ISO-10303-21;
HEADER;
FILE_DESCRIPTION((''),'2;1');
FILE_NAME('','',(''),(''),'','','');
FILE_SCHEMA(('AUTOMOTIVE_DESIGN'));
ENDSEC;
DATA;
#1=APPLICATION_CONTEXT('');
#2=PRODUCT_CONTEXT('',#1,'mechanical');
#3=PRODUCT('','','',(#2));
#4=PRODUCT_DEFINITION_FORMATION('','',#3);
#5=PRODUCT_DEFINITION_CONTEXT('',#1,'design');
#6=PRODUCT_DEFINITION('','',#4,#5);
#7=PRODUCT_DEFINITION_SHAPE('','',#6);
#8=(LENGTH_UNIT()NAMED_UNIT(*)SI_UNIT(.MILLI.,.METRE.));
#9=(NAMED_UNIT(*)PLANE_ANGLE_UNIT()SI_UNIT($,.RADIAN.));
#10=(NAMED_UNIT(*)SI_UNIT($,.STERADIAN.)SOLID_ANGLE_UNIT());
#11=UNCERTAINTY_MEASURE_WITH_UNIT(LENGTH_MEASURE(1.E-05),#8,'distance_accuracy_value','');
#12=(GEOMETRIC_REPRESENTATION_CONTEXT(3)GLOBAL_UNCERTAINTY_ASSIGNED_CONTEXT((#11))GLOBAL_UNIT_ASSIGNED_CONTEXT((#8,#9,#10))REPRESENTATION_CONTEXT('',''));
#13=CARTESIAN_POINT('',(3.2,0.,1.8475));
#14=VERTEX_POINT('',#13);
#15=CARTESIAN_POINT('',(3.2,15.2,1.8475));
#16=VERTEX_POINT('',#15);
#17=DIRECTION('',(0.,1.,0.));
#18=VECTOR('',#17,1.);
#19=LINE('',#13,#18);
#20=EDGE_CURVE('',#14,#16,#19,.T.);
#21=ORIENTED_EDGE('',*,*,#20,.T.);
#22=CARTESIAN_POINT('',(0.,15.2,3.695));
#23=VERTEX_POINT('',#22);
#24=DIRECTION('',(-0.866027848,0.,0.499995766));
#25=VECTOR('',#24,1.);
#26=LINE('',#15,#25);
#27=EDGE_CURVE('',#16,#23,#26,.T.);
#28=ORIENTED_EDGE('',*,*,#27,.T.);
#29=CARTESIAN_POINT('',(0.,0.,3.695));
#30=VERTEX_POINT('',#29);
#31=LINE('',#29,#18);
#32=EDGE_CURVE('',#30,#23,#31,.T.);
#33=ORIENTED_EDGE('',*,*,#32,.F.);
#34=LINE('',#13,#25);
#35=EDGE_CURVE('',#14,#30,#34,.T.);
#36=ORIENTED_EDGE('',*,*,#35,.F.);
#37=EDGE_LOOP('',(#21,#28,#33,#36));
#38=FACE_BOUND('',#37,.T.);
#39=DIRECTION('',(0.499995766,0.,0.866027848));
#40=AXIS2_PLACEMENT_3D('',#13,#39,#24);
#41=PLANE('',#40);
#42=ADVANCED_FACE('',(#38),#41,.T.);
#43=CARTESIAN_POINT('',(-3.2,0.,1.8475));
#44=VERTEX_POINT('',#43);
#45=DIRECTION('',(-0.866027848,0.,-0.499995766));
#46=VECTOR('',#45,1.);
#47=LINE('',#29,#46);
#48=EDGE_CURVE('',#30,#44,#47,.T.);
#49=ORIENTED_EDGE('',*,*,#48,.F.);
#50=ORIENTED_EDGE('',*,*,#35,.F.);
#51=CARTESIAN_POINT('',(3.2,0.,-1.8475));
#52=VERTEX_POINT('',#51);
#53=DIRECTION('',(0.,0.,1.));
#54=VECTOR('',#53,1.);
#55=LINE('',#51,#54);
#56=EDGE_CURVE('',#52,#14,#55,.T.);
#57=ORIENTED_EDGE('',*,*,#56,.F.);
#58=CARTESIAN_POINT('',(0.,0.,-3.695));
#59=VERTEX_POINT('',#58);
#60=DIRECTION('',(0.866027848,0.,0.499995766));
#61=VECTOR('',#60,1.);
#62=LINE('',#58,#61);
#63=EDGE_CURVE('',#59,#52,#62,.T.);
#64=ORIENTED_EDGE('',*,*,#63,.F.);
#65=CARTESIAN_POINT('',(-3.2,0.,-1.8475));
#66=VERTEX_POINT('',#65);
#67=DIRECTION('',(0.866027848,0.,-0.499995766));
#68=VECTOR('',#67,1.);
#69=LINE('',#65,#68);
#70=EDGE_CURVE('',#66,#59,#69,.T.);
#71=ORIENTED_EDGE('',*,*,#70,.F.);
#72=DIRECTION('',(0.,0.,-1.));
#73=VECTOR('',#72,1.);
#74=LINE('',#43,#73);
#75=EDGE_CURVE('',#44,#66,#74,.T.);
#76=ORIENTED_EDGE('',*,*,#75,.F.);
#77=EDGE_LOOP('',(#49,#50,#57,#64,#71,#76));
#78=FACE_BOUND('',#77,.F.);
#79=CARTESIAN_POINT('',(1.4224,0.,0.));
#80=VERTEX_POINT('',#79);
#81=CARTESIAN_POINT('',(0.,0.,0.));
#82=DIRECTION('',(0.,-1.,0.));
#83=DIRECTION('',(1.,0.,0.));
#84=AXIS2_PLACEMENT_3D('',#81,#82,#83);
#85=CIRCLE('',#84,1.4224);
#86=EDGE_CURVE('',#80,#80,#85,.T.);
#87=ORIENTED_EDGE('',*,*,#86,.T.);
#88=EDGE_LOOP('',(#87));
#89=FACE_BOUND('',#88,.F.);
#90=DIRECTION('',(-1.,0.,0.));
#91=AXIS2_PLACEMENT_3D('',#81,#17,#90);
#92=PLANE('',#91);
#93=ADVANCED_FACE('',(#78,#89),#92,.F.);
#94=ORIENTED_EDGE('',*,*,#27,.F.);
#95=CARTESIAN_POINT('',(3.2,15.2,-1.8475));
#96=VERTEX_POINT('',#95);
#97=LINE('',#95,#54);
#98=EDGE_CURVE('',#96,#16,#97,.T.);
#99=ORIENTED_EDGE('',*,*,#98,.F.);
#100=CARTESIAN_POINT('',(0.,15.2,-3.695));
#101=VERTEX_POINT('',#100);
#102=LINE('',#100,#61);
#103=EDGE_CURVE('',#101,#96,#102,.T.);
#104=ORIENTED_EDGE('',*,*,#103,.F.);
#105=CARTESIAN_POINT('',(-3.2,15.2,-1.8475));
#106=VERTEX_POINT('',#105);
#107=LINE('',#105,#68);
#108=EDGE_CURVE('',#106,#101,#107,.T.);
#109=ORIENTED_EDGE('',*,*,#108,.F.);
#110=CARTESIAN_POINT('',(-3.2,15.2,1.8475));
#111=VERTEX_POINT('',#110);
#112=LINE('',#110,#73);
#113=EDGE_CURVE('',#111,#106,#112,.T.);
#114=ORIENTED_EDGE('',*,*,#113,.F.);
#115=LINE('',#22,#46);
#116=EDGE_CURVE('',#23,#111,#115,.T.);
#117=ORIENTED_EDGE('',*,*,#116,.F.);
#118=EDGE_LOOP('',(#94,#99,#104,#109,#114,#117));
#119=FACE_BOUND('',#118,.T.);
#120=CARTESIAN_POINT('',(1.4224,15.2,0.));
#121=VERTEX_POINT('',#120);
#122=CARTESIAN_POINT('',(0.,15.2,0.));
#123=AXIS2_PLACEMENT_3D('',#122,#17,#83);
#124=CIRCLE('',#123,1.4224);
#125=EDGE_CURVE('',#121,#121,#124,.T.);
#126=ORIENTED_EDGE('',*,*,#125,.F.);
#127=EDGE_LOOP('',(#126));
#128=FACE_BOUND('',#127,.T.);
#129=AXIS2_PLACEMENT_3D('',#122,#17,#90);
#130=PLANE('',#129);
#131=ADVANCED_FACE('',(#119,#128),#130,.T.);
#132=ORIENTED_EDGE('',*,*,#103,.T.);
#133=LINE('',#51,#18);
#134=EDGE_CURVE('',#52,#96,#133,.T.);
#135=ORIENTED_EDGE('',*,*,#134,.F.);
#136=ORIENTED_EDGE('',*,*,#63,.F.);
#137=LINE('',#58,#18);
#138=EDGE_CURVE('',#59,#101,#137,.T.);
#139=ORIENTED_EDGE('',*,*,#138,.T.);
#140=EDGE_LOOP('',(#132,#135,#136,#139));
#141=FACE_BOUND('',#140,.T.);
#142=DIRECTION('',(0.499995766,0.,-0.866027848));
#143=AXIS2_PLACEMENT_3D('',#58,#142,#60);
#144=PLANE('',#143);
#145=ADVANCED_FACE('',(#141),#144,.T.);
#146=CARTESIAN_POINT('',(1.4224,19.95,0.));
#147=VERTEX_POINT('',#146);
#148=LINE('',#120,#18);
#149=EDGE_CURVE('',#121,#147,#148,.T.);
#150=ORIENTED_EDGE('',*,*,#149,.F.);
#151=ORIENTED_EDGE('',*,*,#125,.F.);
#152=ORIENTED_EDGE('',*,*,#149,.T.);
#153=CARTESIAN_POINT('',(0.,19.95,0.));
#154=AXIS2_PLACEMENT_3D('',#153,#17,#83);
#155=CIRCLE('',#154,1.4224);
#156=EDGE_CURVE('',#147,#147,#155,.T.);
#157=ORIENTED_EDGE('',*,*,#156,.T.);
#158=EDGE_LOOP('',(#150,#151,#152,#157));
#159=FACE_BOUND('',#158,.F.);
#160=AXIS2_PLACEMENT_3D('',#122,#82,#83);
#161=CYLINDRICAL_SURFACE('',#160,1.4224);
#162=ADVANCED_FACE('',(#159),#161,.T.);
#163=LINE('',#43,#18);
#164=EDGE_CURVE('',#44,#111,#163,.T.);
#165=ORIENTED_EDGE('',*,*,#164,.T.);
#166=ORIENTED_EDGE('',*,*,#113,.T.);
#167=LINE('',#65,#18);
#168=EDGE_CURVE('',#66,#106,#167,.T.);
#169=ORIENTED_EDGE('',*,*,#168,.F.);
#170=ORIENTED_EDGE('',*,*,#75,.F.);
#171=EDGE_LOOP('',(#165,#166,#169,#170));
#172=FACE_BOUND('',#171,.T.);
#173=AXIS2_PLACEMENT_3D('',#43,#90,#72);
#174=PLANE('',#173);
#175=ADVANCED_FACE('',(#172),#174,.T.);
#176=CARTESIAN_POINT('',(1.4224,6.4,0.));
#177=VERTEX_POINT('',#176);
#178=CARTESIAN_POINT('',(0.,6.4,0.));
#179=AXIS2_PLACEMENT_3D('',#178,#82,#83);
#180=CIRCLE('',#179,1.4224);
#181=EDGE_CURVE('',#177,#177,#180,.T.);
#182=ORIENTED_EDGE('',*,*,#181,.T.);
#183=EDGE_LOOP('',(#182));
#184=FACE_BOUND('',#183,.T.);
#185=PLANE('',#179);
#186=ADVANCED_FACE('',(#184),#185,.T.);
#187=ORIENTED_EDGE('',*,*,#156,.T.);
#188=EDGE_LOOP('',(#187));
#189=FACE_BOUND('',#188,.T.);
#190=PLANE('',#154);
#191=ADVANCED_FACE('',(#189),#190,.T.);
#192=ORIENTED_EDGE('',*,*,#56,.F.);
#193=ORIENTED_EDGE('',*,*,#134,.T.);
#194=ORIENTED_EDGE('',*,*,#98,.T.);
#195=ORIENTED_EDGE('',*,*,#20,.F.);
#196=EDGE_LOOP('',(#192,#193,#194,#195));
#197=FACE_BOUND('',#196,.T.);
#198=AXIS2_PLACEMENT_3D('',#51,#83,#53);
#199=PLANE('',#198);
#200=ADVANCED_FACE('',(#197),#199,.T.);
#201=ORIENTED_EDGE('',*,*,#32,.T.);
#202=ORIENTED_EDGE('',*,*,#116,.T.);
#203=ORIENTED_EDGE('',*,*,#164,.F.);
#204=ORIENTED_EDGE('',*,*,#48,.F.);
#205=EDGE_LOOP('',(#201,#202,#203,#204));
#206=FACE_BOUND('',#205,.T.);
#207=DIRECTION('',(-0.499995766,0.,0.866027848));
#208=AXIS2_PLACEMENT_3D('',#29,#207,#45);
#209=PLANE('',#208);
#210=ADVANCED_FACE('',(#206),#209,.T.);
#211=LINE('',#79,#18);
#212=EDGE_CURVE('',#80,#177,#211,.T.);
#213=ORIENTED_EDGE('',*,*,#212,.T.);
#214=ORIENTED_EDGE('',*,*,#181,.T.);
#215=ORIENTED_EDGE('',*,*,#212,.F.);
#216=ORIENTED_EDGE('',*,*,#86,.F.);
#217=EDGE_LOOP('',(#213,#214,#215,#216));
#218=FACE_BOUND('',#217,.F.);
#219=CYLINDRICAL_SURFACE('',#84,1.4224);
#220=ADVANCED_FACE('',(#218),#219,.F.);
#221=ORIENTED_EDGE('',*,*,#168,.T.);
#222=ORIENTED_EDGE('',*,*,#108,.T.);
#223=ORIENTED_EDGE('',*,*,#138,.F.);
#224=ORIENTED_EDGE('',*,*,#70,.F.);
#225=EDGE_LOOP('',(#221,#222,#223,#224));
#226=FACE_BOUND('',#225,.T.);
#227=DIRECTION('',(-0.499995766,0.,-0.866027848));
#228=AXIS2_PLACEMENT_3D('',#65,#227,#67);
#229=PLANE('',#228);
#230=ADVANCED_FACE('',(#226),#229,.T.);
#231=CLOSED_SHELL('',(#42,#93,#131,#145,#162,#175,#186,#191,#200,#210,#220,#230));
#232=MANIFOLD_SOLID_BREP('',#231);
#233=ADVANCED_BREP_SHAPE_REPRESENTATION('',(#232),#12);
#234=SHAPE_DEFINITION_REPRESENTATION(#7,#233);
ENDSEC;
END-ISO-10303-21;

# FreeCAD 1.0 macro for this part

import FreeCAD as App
import Part
import Sketcher

V = App.Vector
Q = App.Units.Quantity


def add_polygon(sketch, points):
    """Adds a closed chain of lines whose ends are joined by coincident constraints."""
    first, n = sketch.GeometryCount, len(points)
    for a, b in zip(points, points[1:] + points[:1]):
        sketch.addGeometry(Part.LineSegment(App.Vector(*a, 0), App.Vector(*b, 0)), False)
    for i in range(n):
        sketch.addConstraint(Sketcher.Constraint("Coincident", first + i, 2, first + (i + 1) % n, 1))

doc = App.newDocument("Part")
body = doc.addObject("PartDesign::Body", "Body")

# Sketch on XZ plane
sketch1 = body.newObject("Sketcher::SketchObject", "Sketch")
sketch1.AttachmentSupport = (doc.getObject("XZ_Plane"), [""])
sketch1.MapMode = "FlatFace"
add_polygon(sketch1, [(-3.2, -1.8), (-3.2, 1.8), (0, 3.7), (3.2, 1.8), (3.2, -1.8), (0, -3.7)])  # lines 0-5
sketch1.addConstraint([
    Sketcher.Constraint("Vertical", 0),
    Sketcher.Constraint("Vertical", 3),
    Sketcher.Constraint("Symmetric", 0, 2, 3, 2, -1, 1),
    Sketcher.Constraint("Symmetric", 1, 2, 4, 2, -1, 1),
    Sketcher.Constraint("PointOnObject", 1, 2, -2),
    Sketcher.Constraint("Parallel", 2, 5),
    Sketcher.Constraint("Horizontal", 0, 2, 2, 2),
    Sketcher.Constraint("DistanceX", 0, 2, 2, 2, 6.4),
    Sketcher.Constraint("Angle", 1, Q("29.9997 deg")),
    Sketcher.Constraint("DistanceY", 0, 1, 0, 2, 3.695),
])
pad1 = body.newObject("PartDesign::Pad", "Pad")
pad1.Profile = sketch1
pad1.Length = 15.2
pad1.Reversed = True

# Sketch on XZ plane
sketch2 = body.newObject("Sketcher::SketchObject", "Sketch001")
sketch2.AttachmentSupport = (doc.getObject("XZ_Plane"), [""])
sketch2.MapMode = "FlatFace"
sketch2.addGeometry(Part.Circle(V(0, 0, 0), V(0, 0, 1), 1.4), False)
sketch2.addConstraint([
    Sketcher.Constraint("Coincident", 0, 3, -1, 1),
    Sketcher.Constraint("Diameter", 0, 2.8448),
])
pocket1 = body.newObject("PartDesign::Pocket", "Pocket")
pocket1.Profile = sketch2
pocket1.Length = 6.4

# Sketch on XZ plane
sketch3 = body.newObject("Sketcher::SketchObject", "Sketch002")
sketch3.AttachmentSupport = (doc.getObject("XZ_Plane"), [""])
sketch3.MapMode = "FlatFace"
sketch3.AttachmentOffset = App.Placement(V(0, 0, -15.2), App.Rotation())
sketch3.addGeometry(Part.Circle(V(0, 0, 0), V(0, 0, 1), 1.4), False)
sketch3.addConstraint([
    Sketcher.Constraint("Coincident", 0, 3, -1, 1),
    Sketcher.Constraint("Diameter", 0, 2.8448),
])
pad2 = body.newObject("PartDesign::Pad", "Pad001")
pad2.Profile = sketch3
pad2.Length = 4.75
pad2.Reversed = True

doc.recompute()
